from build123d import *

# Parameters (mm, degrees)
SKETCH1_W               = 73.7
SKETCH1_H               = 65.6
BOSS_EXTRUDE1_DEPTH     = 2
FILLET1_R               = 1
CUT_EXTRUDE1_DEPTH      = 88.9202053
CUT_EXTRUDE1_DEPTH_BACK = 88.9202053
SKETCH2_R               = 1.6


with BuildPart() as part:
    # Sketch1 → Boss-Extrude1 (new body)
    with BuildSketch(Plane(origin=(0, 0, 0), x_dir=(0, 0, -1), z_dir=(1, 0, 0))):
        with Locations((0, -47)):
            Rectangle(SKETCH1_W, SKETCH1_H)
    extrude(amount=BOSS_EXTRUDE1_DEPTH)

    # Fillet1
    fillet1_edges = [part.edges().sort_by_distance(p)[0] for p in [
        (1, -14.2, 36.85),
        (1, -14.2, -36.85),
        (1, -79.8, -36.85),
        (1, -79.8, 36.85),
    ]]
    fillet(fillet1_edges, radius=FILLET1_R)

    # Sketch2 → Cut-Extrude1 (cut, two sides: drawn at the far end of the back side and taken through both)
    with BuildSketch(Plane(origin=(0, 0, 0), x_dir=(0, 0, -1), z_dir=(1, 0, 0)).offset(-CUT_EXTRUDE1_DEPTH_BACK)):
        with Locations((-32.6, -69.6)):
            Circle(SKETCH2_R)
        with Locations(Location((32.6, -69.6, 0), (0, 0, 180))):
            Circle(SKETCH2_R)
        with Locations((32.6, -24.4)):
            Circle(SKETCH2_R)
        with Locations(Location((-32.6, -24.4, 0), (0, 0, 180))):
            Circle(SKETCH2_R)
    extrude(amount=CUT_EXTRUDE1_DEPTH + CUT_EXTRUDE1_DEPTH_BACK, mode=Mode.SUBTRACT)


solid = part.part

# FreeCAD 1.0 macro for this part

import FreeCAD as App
import Part
import Sketcher

V = App.Vector


def edges_at(feature, points):
    """Names of the edges that pass closest to the given points."""
    edges = feature.Shape.Edges
    near = lambda p: min(range(len(edges)), key=lambda i: edges[i].distToShape(Part.Vertex(*p))[0])
    return sorted({f"Edge{near(p) + 1}" for p in points})


def add_polygon(sketch, points):
    """Adds a closed chain of lines whose ends are joined by coincident constraints."""
    first, n = sketch.GeometryCount, len(points)
    for a, b in zip(points, points[1:] + points[:1]):
        sketch.addGeometry(Part.LineSegment(App.Vector(*a, 0), App.Vector(*b, 0)), False)
    for i in range(n):
        sketch.addConstraint(Sketcher.Constraint("Coincident", first + i, 2, first + (i + 1) % n, 1))

doc = App.newDocument("Part")
body = doc.addObject("PartDesign::Body", "Body")

sketch1 = doc.addObject("Sketcher::SketchObject", "Sketch")
body.addObject(sketch1)
sketch1.AttachmentSupport = (doc.YZ_Plane, [""])
sketch1.MapMode = "FlatFace"
add_polygon(sketch1, [(-14, 37), (-80, 37), (-80, -37), (-14, -37)])
sketch1.addConstraint(Sketcher.Constraint("Horizontal", 0))
sketch1.addConstraint(Sketcher.Constraint("Vertical", 1))
sketch1.addConstraint(Sketcher.Constraint("Horizontal", 2))
sketch1.addConstraint(Sketcher.Constraint("Vertical", 3))
sketch1.addConstraint(Sketcher.Constraint("DistanceX", 0, 2, 0, 1, 65.6))
sketch1.addConstraint(Sketcher.Constraint("DistanceY", 1, 2, 1, 1, 73.7))
sketch1.addConstraint(Sketcher.Constraint("DistanceX", 0, 2, -1, 1, 79.8))
sketch1.addConstraint(Sketcher.Constraint("DistanceY", -1, 1, 0, 2, 36.85))
pad1 = doc.addObject("PartDesign::Pad", "Pad")
body.addObject(pad1)
pad1.Profile = sketch1
pad1.Length = 2
doc.recompute()

fillet = doc.addObject("PartDesign::Fillet", "Fillet")
body.addObject(fillet)
fillet.Base = (pad1, edges_at(pad1, [
    (1, -14.2, 36.85),
    (1, -14.2, -36.85),
    (1, -79.8, -36.85),
    (1, -79.8, 36.85),
]))
fillet.Radius = 1

sketch2 = doc.addObject("Sketcher::SketchObject", "Sketch001")
body.addObject(sketch2)
sketch2.AttachmentSupport = (doc.YZ_Plane, [""])
sketch2.MapMode = "FlatFace"
sketch2.addGeometry(Part.Circle(V(-69.6, 32.6, 0), V(0, 0, 1), 1.6), False)
sketch2.addGeometry(Part.Circle(V(-69.6, -32.6, 0), V(0, 0, 1), 1.6), False)
sketch2.addGeometry(Part.Circle(V(-24.4, -32.6, 0), V(0, 0, 1), 1.6), False)
sketch2.addGeometry(Part.Circle(V(-24.4, 32.6, 0), V(0, 0, 1), 1.6), False)
sketch2.addConstraint(Sketcher.Constraint("Equal", 0, 1))
sketch2.addConstraint(Sketcher.Constraint("Equal", 1, 2))
sketch2.addConstraint(Sketcher.Constraint("Equal", 2, 3))
sketch2.addConstraint(Sketcher.Constraint("Symmetric", 0, 3, 1, 3, -1))
sketch2.addConstraint(Sketcher.Constraint("Symmetric", 2, 3, 3, 3, -1))
sketch2.addConstraint(Sketcher.Constraint("Horizontal", 1, 3, 2, 3))
sketch2.addConstraint(Sketcher.Constraint("Diameter", 0, 3.2))
sketch2.addConstraint(Sketcher.Constraint("DistanceX", 0, 3, -1, 1, 69.6))
sketch2.addConstraint(Sketcher.Constraint("DistanceY", -1, 1, 0, 3, 32.6))
sketch2.addConstraint(Sketcher.Constraint("DistanceX", 2, 3, -1, 1, 24.4))
pocket1 = doc.addObject("PartDesign::Pocket", "Pocket")
body.addObject(pocket1)
pocket1.Profile = sketch2
pocket1.Type = "ThroughAll"
pocket1.Midplane = True

doc.recompute()
